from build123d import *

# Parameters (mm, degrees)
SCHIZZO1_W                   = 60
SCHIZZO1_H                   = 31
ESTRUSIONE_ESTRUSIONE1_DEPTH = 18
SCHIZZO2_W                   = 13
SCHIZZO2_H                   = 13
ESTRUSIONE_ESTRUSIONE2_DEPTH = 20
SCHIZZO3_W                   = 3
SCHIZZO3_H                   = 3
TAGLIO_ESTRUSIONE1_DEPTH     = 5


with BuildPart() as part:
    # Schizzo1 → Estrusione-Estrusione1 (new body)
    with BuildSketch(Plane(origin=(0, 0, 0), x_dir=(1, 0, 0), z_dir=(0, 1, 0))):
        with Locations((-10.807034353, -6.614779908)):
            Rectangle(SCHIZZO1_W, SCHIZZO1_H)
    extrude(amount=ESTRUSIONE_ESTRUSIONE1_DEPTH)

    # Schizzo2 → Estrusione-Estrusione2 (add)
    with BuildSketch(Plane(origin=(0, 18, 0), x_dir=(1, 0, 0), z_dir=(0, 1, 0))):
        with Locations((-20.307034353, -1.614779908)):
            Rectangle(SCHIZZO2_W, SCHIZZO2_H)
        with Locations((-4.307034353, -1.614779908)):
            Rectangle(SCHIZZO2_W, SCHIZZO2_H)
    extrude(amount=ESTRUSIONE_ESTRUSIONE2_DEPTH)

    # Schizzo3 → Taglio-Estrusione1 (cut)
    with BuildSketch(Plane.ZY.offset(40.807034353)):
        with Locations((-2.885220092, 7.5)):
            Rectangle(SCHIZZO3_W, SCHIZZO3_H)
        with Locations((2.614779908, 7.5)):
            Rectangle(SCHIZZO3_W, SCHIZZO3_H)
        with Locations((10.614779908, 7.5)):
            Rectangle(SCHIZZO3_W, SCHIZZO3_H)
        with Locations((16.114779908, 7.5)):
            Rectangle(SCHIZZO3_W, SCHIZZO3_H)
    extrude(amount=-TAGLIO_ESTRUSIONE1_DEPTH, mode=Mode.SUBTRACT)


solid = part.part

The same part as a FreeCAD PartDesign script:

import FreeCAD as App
import Part
import Sketcher
from FreeCAD import Vector


def add_polygon(sketch, points):
    """Adds a closed chain of lines whose ends are joined by coincident constraints."""
    first, n = sketch.GeometryCount, len(points)
    for a, b in zip(points, points[1:] + points[:1]):
        sketch.addGeometry(Part.LineSegment(App.Vector(*a, 0), App.Vector(*b, 0)), False)
    for i in range(n):
        sketch.addConstraint(Sketcher.Constraint("Coincident", first + i, 2, first + (i + 1) % n, 1))

doc = App.newDocument("Part")
params = doc.addObject("Spreadsheet::Sheet", "Params")
for row, (alias, value) in enumerate([
    ("sketch1_width", "60 mm"),
    ("sketch1_height", "31 mm"),
    ("pad1_length", "18 mm"),
    ("sketch2_width", "13 mm"),
    ("pad2_length", "20 mm"),
    ("sketch3_width", "3 mm"),
    ("pocket1_length", "5 mm"),
], start=1):
    params.set(f"A{row}", alias)
    params.set(f"B{row}", "=" + value)
    params.setAlias(f"B{row}", alias)

body = doc.addObject("PartDesign::Body", "Body")

sketch1 = body.newObject("Sketcher::SketchObject", "Sketch")
sketch1.AttachmentSupport = (doc.getObject("XZ_Plane"), [""])
sketch1.MapMode = "FlatFace"
add_polygon(sketch1, [(-41, -9), (-41, 22), (19, 22), (19, -9)])
sketch1.addConstraint(Sketcher.Constraint("Vertical", 0))
sketch1.addConstraint(Sketcher.Constraint("Horizontal", 1))
sketch1.addConstraint(Sketcher.Constraint("Vertical", 2))
sketch1.addConstraint(Sketcher.Constraint("Horizontal", 3))
sketch1.addConstraint(Sketcher.Constraint("DistanceX", 1, 1, 1, 2, 60.0))
sketch1.addConstraint(Sketcher.Constraint("DistanceY", 0, 1, 0, 2, 31.0))
sketch1.addConstraint(Sketcher.Constraint("DistanceY", -1, 1, 0, 2, 22.11478))
sketch1.addConstraint(Sketcher.Constraint("DistanceX", 0, 2, -1, 1, 40.807034))
sketch1.setExpression("Constraints[8]", "Params.sketch1_width")
sketch1.setExpression("Constraints[9]", "Params.sketch1_height")
pad1 = body.newObject("PartDesign::Pad", "Pad")
pad1.Profile = sketch1
pad1.setExpression("Length", "Params.pad1_length")
pad1.Reversed = True

sketch2 = body.newObject("Sketcher::SketchObject", "Sketch001")
sketch2.AttachmentSupport = (doc.getObject("XZ_Plane"), [""])
sketch2.MapMode = "FlatFace"
sketch2.AttachmentOffset = App.Placement(Vector(0, 0, -18), App.Rotation())
add_polygon(sketch2, [(-27, -5), (-27, 8), (-14, 8), (-14, -5)])
add_polygon(sketch2, [(-11, -5), (-11, 8), (2, 8), (2, -5)])
sketch2.addConstraint(Sketcher.Constraint("Vertical", 0))
sketch2.addConstraint(Sketcher.Constraint("Horizontal", 1))
sketch2.addConstraint(Sketcher.Constraint("Vertical", 2))
sketch2.addConstraint(Sketcher.Constraint("Horizontal", 3))
sketch2.addConstraint(Sketcher.Constraint("Vertical", 4))
sketch2.addConstraint(Sketcher.Constraint("Horizontal", 5))
sketch2.addConstraint(Sketcher.Constraint("Vertical", 6))
sketch2.addConstraint(Sketcher.Constraint("Horizontal", 7))
sketch2.addConstraint(Sketcher.Constraint("Horizontal", 1, 2, 4, 2))
sketch2.addConstraint(Sketcher.Constraint("Horizontal", 3, 2, 6, 2))
sketch2.addConstraint(Sketcher.Constraint("Equal", 3, 5))
sketch2.addConstraint(Sketcher.Constraint("Equal", 7, 0))
sketch2.addConstraint(Sketcher.Constraint("DistanceX", 1, 1, 1, 2, 13.0))
sketch2.addConstraint(Sketcher.Constraint("DistanceX", 1, 2, 4, 2, 3.0))
sketch2.addConstraint(Sketcher.Constraint("DistanceY", -1, 1, 0, 2, 8.11478))
sketch2.addConstraint(Sketcher.Constraint("DistanceX", 0, 2, -1, 1, 26.807034))
sketch2.setExpression("Constraints[20]", "Params.sketch2_width")
pad2 = body.newObject("PartDesign::Pad", "Pad001")
pad2.Profile = sketch2
pad2.setExpression("Length", "Params.pad2_length")
pad2.Reversed = True

sketch3 = body.newObject("Sketcher::SketchObject", "Sketch002")
sketch3.AttachmentSupport = (doc.getObject("YZ_Plane"), [""])
sketch3.MapMode = "FlatFace"
sketch3.AttachmentOffset = App.Placement(Vector(0, 0, -40.807034), App.Rotation())
add_polygon(sketch3, [(9, -4.4), (6, -4.4), (6, -1.4), (9, -1.4)])
add_polygon(sketch3, [(9, 1.1), (6, 1.1), (6, 4.1), (9, 4.1)])
add_polygon(sketch3, [(9, 9.1), (6, 9.1), (6, 12.1), (9, 12.1)])
add_polygon(sketch3, [(9, 14.6), (6, 14.6), (6, 17.6), (9, 17.6)])
sketch3.addConstraint(Sketcher.Constraint("Horizontal", 0))
sketch3.addConstraint(Sketcher.Constraint("Vertical", 1))
sketch3.addConstraint(Sketcher.Constraint("Horizontal", 2))
sketch3.addConstraint(Sketcher.Constraint("Vertical", 3))
sketch3.addConstraint(Sketcher.Constraint("Horizontal", 4))
sketch3.addConstraint(Sketcher.Constraint("Vertical", 5))
sketch3.addConstraint(Sketcher.Constraint("Horizontal", 6))
sketch3.addConstraint(Sketcher.Constraint("Vertical", 7))
sketch3.addConstraint(Sketcher.Constraint("Horizontal", 8))
sketch3.addConstraint(Sketcher.Constraint("Vertical", 9))
sketch3.addConstraint(Sketcher.Constraint("Horizontal", 10))
sketch3.addConstraint(Sketcher.Constraint("Vertical", 11))
sketch3.addConstraint(Sketcher.Constraint("Horizontal", 12))
sketch3.addConstraint(Sketcher.Constraint("Vertical", 13))
sketch3.addConstraint(Sketcher.Constraint("Horizontal", 14))
sketch3.addConstraint(Sketcher.Constraint("Vertical", 15))
sketch3.addConstraint(Sketcher.Constraint("Vertical", 1, 2, 4, 2))
sketch3.addConstraint(Sketcher.Constraint("Vertical", 3, 2, 6, 2))
sketch3.addConstraint(Sketcher.Constraint("Vertical", 5, 2, 8, 2))
sketch3.addConstraint(Sketcher.Constraint("Vertical", 7, 2, 10, 2))
sketch3.addConstraint(Sketcher.Constraint("Vertical", 9, 2, 12, 2))
sketch3.addConstraint(Sketcher.Constraint("Vertical", 11, 2, 14, 2))
sketch3.addConstraint(Sketcher.Constraint("Equal", 14, 1))
sketch3.addConstraint(Sketcher.Constraint("Equal", 3, 5))
sketch3.addConstraint(Sketcher.Constraint("Equal", 7, 9))
sketch3.addConstraint(Sketcher.Constraint("Equal", 11, 13))
sketch3.addConstraint(Sketcher.Constraint("DistanceX", 0, 2, 0, 1, 3.0))
sketch3.addConstraint(Sketcher.Constraint("DistanceX", -1, 1, 0, 2, 6.0))
sketch3.addConstraint(Sketcher.Constraint("DistanceY", 5, 2, 8, 2, 5.0))
sketch3.addConstraint(Sketcher.Constraint("DistanceY", 1, 2, 4, 2, 2.5))
sketch3.addConstraint(Sketcher.Constraint("DistanceY", 9, 2, 12, 2, 2.5))
sketch3.addConstraint(Sketcher.Constraint("DistanceY", 0, 2, -1, 1, 4.38522))
sketch3.setExpression("Constraints[42]", "Params.sketch3_width")
pocket1 = body.newObject("PartDesign::Pocket", "Pocket")
pocket1.Profile = sketch3
pocket1.setExpression("Length", "Params.pocket1_length")
pocket1.Reversed = True

doc.recompute()
